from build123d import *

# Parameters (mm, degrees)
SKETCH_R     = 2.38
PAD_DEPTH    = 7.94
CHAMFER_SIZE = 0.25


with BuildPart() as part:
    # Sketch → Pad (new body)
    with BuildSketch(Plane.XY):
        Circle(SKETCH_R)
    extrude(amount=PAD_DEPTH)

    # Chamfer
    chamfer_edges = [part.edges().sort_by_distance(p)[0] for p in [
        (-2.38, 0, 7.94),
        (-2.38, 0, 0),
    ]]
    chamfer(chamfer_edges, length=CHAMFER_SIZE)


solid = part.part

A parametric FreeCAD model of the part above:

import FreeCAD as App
import Part
import Sketcher

V = App.Vector


def edges_at(feature, points):
    """Names of the edges that pass closest to the given points."""
    edges = feature.Shape.Edges
    near = lambda p: min(range(len(edges)), key=lambda i: edges[i].distToShape(Part.Vertex(*p))[0])
    return sorted({f"Edge{near(p) + 1}" for p in points})

doc = App.newDocument("Part")
params = doc.addObject("Spreadsheet::Sheet", "Params")
for row, (alias, value) in enumerate([
    ("sketch1_diameter", "4.76 mm"),
    ("pad1_length", "7.94 mm"),
    ("chamfer_size", "0.25 mm"),
], start=1):
    params.set(f"A{row}", alias)
    params.set(f"B{row}", "=" + value)
    params.setAlias(f"B{row}", alias)

body = doc.addObject("PartDesign::Body", "Body")

# Sketch on XY plane
sketch1 = doc.addObject("Sketcher::SketchObject", "Sketch")
body.addObject(sketch1)
sketch1.AttachmentSupport = (doc.XY_Plane, [""])
sketch1.MapMode = "FlatFace"
sketch1.addGeometry(Part.Circle(V(0, 0, 0), V(0, 0, 1), 2.4), False)
sketch1.addConstraint([
    Sketcher.Constraint("Coincident", 0, 3, -1, 1),
    Sketcher.Constraint("Diameter", 0, 4.76),
])
sketch1.setExpression("Constraints[1]", "Params.sketch1_diameter")
pad1 = doc.addObject("PartDesign::Pad", "Pad")
body.addObject(pad1)
pad1.Profile = sketch1
pad1.setExpression("Length", "Params.pad1_length")
doc.recompute()

chamfer = doc.addObject("PartDesign::Chamfer", "Chamfer")
body.addObject(chamfer)
chamfer.Base = (pad1, edges_at(pad1, [(-2.38, 0, 7.94), (-2.38, 0, 0)]))
chamfer.setExpression("Size", "Params.chamfer_size")

doc.recompute()
